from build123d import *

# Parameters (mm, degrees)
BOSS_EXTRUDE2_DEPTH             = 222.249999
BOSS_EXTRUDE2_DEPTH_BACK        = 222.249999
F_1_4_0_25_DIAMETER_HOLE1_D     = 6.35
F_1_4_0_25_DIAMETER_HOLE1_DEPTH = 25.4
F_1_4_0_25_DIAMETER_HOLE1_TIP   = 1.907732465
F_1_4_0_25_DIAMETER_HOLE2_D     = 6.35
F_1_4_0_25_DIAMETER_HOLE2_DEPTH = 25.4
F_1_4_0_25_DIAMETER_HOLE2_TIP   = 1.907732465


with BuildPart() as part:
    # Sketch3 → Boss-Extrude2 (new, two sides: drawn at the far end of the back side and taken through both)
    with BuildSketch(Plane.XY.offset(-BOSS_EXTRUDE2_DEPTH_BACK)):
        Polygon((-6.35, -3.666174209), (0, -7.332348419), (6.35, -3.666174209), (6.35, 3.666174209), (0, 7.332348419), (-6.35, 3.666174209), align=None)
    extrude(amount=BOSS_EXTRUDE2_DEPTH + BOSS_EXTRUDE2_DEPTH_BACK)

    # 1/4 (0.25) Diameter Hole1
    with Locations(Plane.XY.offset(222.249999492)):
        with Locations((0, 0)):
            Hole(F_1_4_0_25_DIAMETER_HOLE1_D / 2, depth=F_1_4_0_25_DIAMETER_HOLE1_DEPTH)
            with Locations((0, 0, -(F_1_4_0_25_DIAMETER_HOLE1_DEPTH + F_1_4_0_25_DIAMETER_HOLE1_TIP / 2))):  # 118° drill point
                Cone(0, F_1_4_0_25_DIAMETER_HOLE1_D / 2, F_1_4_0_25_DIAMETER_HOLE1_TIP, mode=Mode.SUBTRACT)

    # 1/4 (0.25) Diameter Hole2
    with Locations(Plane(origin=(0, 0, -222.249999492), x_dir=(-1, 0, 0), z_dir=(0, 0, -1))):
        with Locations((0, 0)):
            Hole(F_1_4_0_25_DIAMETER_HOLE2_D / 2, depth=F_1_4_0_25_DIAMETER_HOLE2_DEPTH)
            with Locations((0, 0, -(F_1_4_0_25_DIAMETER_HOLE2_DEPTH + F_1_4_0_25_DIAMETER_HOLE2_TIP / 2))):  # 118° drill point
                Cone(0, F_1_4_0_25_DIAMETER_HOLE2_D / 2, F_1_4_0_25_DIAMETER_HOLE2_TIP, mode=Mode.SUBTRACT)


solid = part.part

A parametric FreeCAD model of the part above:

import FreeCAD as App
import Part
import Sketcher
from FreeCAD import Vector
Q = App.Units.Quantity


def add_polygon(sketch, points):
    """Adds a closed chain of lines whose ends are joined by coincident constraints."""
    first, n = sketch.GeometryCount, len(points)
    for a, b in zip(points, points[1:] + points[:1]):
        sketch.addGeometry(Part.LineSegment(App.Vector(*a, 0), App.Vector(*b, 0)), False)
    for i in range(n):
        sketch.addConstraint(Sketcher.Constraint("Coincident", first + i, 2, first + (i + 1) % n, 1))

doc = App.newDocument("Part")
params = doc.addObject("Spreadsheet::Sheet", "Params")
for row, (alias, value) in enumerate([
    ("pad1_length", "8.75 in"),
    ("pad1_length2", "8.75 in"),
    ("sketch2_diameter", "0.25 in"),
    ("hole_diameter", "0.25 in"),
    ("hole_depth", "1 in"),
    ("sketch3_diameter", "0.25 in"),
    ("hole2_diameter", "0.25 in"),
    ("hole2_depth", "1 in"),
], start=1):
    params.set(f"A{row}", alias)
    params.set(f"B{row}", "=" + value)
    params.setAlias(f"B{row}", alias)

body = doc.addObject("PartDesign::Body", "Body")

# Sketch on XY plane
sketch1 = doc.addObject("Sketcher::SketchObject", "Sketch")
body.addObject(sketch1)
sketch1.AttachmentSupport = (doc.XY_Plane, [""])
sketch1.MapMode = "FlatFace"
add_polygon(sketch1, [(-6.35, -3.666174), (0, -7.332348), (6.35, -3.666174), (6.35, 3.666174), (0, 7.332348), (-6.35, 3.666174)])  # lines 0-5
sketch1.addConstraint(Sketcher.Constraint("Vertical", 2))
sketch1.addConstraint(Sketcher.Constraint("Vertical", 5))
sketch1.addConstraint(Sketcher.Constraint("Symmetric", 0, 2, 3, 2, -1, 1))
sketch1.addConstraint(Sketcher.Constraint("Symmetric", 1, 2, 4, 2, -1, 1))
sketch1.addConstraint(Sketcher.Constraint("PointOnObject", 0, 2, -2))
sketch1.addConstraint(Sketcher.Constraint("Parallel", 0, 3))
sketch1.addConstraint(Sketcher.Constraint("Horizontal", 2, 2, 4, 2))
sketch1.addConstraint(Sketcher.Constraint("Angle", 0, Q("-30 deg")))
sketch1.addConstraint(Sketcher.Constraint("DistanceX", 4, 2, 2, 2, Q("0.5 in")))
sketch1.addConstraint(Sketcher.Constraint("DistanceY", 2, 1, 2, 2, 7.332348))
pad1 = doc.addObject("PartDesign::Pad", "Pad")
body.addObject(pad1)
pad1.Profile = sketch1
pad1.Type = "TwoLengths"
pad1.setExpression("Length", "Params.pad1_length")
pad1.setExpression("Length2", "Params.pad1_length2")

# Sketch on XY plane
sketch2 = doc.addObject("Sketcher::SketchObject", "Sketch001")
body.addObject(sketch2)
sketch2.AttachmentSupport = (doc.XY_Plane, [""])
sketch2.MapMode = "FlatFace"
sketch2.AttachmentOffset = App.Placement(Vector(0, 0, 8.75 * 25.4), App.Rotation())
sketch2.addGeometry(Part.Circle(Vector(0, 0, 0), Vector(0, 0, 1), 3.175), False)
sketch2.addConstraint(Sketcher.Constraint("Coincident", 0, 3, -1, 1))
sketch2.addConstraint(Sketcher.Constraint("Diameter", 0, Q("0.25 in")))
sketch2.setExpression("Constraints[1]", "Params.sketch2_diameter")
doc.recompute()
hole = doc.addObject("PartDesign::Hole", "Hole")
body.addObject(hole)
hole.Profile = sketch2
hole.ThreadType = "None"
hole.setExpression("Diameter", "Params.hole_diameter")
hole.DepthType = "Dimension"
hole.setExpression("Depth", "Params.hole_depth")
hole.DrillPoint = "Angled"
hole.DrillPointAngle = 118

# Sketch on XY plane
sketch3 = doc.addObject("Sketcher::SketchObject", "Sketch002")
body.addObject(sketch3)
sketch3.AttachmentSupport = (doc.XY_Plane, [""])
sketch3.MapMode = "FlatFace"
sketch3.AttachmentOffset = App.Placement(Vector(0, 0, -8.75 * 25.4), App.Rotation())
sketch3.addGeometry(Part.Circle(Vector(0, 0, 0), Vector(0, 0, 1), 3.175), False)
sketch3.addConstraint(Sketcher.Constraint("Coincident", 0, 3, -1, 1))
sketch3.addConstraint(Sketcher.Constraint("Diameter", 0, Q("0.25 in")))
sketch3.setExpression("Constraints[1]", "Params.sketch3_diameter")
doc.recompute()
hole2 = doc.addObject("PartDesign::Hole", "Hole001")
body.addObject(hole2)
hole2.Profile = sketch3
hole2.ThreadType = "None"
hole2.setExpression("Diameter", "Params.hole2_diameter")
hole2.DepthType = "Dimension"
hole2.setExpression("Depth", "Params.hole2_depth")
hole2.DrillPoint = "Angled"
hole2.DrillPointAngle = 118
hole2.Reversed = True

doc.recompute()
